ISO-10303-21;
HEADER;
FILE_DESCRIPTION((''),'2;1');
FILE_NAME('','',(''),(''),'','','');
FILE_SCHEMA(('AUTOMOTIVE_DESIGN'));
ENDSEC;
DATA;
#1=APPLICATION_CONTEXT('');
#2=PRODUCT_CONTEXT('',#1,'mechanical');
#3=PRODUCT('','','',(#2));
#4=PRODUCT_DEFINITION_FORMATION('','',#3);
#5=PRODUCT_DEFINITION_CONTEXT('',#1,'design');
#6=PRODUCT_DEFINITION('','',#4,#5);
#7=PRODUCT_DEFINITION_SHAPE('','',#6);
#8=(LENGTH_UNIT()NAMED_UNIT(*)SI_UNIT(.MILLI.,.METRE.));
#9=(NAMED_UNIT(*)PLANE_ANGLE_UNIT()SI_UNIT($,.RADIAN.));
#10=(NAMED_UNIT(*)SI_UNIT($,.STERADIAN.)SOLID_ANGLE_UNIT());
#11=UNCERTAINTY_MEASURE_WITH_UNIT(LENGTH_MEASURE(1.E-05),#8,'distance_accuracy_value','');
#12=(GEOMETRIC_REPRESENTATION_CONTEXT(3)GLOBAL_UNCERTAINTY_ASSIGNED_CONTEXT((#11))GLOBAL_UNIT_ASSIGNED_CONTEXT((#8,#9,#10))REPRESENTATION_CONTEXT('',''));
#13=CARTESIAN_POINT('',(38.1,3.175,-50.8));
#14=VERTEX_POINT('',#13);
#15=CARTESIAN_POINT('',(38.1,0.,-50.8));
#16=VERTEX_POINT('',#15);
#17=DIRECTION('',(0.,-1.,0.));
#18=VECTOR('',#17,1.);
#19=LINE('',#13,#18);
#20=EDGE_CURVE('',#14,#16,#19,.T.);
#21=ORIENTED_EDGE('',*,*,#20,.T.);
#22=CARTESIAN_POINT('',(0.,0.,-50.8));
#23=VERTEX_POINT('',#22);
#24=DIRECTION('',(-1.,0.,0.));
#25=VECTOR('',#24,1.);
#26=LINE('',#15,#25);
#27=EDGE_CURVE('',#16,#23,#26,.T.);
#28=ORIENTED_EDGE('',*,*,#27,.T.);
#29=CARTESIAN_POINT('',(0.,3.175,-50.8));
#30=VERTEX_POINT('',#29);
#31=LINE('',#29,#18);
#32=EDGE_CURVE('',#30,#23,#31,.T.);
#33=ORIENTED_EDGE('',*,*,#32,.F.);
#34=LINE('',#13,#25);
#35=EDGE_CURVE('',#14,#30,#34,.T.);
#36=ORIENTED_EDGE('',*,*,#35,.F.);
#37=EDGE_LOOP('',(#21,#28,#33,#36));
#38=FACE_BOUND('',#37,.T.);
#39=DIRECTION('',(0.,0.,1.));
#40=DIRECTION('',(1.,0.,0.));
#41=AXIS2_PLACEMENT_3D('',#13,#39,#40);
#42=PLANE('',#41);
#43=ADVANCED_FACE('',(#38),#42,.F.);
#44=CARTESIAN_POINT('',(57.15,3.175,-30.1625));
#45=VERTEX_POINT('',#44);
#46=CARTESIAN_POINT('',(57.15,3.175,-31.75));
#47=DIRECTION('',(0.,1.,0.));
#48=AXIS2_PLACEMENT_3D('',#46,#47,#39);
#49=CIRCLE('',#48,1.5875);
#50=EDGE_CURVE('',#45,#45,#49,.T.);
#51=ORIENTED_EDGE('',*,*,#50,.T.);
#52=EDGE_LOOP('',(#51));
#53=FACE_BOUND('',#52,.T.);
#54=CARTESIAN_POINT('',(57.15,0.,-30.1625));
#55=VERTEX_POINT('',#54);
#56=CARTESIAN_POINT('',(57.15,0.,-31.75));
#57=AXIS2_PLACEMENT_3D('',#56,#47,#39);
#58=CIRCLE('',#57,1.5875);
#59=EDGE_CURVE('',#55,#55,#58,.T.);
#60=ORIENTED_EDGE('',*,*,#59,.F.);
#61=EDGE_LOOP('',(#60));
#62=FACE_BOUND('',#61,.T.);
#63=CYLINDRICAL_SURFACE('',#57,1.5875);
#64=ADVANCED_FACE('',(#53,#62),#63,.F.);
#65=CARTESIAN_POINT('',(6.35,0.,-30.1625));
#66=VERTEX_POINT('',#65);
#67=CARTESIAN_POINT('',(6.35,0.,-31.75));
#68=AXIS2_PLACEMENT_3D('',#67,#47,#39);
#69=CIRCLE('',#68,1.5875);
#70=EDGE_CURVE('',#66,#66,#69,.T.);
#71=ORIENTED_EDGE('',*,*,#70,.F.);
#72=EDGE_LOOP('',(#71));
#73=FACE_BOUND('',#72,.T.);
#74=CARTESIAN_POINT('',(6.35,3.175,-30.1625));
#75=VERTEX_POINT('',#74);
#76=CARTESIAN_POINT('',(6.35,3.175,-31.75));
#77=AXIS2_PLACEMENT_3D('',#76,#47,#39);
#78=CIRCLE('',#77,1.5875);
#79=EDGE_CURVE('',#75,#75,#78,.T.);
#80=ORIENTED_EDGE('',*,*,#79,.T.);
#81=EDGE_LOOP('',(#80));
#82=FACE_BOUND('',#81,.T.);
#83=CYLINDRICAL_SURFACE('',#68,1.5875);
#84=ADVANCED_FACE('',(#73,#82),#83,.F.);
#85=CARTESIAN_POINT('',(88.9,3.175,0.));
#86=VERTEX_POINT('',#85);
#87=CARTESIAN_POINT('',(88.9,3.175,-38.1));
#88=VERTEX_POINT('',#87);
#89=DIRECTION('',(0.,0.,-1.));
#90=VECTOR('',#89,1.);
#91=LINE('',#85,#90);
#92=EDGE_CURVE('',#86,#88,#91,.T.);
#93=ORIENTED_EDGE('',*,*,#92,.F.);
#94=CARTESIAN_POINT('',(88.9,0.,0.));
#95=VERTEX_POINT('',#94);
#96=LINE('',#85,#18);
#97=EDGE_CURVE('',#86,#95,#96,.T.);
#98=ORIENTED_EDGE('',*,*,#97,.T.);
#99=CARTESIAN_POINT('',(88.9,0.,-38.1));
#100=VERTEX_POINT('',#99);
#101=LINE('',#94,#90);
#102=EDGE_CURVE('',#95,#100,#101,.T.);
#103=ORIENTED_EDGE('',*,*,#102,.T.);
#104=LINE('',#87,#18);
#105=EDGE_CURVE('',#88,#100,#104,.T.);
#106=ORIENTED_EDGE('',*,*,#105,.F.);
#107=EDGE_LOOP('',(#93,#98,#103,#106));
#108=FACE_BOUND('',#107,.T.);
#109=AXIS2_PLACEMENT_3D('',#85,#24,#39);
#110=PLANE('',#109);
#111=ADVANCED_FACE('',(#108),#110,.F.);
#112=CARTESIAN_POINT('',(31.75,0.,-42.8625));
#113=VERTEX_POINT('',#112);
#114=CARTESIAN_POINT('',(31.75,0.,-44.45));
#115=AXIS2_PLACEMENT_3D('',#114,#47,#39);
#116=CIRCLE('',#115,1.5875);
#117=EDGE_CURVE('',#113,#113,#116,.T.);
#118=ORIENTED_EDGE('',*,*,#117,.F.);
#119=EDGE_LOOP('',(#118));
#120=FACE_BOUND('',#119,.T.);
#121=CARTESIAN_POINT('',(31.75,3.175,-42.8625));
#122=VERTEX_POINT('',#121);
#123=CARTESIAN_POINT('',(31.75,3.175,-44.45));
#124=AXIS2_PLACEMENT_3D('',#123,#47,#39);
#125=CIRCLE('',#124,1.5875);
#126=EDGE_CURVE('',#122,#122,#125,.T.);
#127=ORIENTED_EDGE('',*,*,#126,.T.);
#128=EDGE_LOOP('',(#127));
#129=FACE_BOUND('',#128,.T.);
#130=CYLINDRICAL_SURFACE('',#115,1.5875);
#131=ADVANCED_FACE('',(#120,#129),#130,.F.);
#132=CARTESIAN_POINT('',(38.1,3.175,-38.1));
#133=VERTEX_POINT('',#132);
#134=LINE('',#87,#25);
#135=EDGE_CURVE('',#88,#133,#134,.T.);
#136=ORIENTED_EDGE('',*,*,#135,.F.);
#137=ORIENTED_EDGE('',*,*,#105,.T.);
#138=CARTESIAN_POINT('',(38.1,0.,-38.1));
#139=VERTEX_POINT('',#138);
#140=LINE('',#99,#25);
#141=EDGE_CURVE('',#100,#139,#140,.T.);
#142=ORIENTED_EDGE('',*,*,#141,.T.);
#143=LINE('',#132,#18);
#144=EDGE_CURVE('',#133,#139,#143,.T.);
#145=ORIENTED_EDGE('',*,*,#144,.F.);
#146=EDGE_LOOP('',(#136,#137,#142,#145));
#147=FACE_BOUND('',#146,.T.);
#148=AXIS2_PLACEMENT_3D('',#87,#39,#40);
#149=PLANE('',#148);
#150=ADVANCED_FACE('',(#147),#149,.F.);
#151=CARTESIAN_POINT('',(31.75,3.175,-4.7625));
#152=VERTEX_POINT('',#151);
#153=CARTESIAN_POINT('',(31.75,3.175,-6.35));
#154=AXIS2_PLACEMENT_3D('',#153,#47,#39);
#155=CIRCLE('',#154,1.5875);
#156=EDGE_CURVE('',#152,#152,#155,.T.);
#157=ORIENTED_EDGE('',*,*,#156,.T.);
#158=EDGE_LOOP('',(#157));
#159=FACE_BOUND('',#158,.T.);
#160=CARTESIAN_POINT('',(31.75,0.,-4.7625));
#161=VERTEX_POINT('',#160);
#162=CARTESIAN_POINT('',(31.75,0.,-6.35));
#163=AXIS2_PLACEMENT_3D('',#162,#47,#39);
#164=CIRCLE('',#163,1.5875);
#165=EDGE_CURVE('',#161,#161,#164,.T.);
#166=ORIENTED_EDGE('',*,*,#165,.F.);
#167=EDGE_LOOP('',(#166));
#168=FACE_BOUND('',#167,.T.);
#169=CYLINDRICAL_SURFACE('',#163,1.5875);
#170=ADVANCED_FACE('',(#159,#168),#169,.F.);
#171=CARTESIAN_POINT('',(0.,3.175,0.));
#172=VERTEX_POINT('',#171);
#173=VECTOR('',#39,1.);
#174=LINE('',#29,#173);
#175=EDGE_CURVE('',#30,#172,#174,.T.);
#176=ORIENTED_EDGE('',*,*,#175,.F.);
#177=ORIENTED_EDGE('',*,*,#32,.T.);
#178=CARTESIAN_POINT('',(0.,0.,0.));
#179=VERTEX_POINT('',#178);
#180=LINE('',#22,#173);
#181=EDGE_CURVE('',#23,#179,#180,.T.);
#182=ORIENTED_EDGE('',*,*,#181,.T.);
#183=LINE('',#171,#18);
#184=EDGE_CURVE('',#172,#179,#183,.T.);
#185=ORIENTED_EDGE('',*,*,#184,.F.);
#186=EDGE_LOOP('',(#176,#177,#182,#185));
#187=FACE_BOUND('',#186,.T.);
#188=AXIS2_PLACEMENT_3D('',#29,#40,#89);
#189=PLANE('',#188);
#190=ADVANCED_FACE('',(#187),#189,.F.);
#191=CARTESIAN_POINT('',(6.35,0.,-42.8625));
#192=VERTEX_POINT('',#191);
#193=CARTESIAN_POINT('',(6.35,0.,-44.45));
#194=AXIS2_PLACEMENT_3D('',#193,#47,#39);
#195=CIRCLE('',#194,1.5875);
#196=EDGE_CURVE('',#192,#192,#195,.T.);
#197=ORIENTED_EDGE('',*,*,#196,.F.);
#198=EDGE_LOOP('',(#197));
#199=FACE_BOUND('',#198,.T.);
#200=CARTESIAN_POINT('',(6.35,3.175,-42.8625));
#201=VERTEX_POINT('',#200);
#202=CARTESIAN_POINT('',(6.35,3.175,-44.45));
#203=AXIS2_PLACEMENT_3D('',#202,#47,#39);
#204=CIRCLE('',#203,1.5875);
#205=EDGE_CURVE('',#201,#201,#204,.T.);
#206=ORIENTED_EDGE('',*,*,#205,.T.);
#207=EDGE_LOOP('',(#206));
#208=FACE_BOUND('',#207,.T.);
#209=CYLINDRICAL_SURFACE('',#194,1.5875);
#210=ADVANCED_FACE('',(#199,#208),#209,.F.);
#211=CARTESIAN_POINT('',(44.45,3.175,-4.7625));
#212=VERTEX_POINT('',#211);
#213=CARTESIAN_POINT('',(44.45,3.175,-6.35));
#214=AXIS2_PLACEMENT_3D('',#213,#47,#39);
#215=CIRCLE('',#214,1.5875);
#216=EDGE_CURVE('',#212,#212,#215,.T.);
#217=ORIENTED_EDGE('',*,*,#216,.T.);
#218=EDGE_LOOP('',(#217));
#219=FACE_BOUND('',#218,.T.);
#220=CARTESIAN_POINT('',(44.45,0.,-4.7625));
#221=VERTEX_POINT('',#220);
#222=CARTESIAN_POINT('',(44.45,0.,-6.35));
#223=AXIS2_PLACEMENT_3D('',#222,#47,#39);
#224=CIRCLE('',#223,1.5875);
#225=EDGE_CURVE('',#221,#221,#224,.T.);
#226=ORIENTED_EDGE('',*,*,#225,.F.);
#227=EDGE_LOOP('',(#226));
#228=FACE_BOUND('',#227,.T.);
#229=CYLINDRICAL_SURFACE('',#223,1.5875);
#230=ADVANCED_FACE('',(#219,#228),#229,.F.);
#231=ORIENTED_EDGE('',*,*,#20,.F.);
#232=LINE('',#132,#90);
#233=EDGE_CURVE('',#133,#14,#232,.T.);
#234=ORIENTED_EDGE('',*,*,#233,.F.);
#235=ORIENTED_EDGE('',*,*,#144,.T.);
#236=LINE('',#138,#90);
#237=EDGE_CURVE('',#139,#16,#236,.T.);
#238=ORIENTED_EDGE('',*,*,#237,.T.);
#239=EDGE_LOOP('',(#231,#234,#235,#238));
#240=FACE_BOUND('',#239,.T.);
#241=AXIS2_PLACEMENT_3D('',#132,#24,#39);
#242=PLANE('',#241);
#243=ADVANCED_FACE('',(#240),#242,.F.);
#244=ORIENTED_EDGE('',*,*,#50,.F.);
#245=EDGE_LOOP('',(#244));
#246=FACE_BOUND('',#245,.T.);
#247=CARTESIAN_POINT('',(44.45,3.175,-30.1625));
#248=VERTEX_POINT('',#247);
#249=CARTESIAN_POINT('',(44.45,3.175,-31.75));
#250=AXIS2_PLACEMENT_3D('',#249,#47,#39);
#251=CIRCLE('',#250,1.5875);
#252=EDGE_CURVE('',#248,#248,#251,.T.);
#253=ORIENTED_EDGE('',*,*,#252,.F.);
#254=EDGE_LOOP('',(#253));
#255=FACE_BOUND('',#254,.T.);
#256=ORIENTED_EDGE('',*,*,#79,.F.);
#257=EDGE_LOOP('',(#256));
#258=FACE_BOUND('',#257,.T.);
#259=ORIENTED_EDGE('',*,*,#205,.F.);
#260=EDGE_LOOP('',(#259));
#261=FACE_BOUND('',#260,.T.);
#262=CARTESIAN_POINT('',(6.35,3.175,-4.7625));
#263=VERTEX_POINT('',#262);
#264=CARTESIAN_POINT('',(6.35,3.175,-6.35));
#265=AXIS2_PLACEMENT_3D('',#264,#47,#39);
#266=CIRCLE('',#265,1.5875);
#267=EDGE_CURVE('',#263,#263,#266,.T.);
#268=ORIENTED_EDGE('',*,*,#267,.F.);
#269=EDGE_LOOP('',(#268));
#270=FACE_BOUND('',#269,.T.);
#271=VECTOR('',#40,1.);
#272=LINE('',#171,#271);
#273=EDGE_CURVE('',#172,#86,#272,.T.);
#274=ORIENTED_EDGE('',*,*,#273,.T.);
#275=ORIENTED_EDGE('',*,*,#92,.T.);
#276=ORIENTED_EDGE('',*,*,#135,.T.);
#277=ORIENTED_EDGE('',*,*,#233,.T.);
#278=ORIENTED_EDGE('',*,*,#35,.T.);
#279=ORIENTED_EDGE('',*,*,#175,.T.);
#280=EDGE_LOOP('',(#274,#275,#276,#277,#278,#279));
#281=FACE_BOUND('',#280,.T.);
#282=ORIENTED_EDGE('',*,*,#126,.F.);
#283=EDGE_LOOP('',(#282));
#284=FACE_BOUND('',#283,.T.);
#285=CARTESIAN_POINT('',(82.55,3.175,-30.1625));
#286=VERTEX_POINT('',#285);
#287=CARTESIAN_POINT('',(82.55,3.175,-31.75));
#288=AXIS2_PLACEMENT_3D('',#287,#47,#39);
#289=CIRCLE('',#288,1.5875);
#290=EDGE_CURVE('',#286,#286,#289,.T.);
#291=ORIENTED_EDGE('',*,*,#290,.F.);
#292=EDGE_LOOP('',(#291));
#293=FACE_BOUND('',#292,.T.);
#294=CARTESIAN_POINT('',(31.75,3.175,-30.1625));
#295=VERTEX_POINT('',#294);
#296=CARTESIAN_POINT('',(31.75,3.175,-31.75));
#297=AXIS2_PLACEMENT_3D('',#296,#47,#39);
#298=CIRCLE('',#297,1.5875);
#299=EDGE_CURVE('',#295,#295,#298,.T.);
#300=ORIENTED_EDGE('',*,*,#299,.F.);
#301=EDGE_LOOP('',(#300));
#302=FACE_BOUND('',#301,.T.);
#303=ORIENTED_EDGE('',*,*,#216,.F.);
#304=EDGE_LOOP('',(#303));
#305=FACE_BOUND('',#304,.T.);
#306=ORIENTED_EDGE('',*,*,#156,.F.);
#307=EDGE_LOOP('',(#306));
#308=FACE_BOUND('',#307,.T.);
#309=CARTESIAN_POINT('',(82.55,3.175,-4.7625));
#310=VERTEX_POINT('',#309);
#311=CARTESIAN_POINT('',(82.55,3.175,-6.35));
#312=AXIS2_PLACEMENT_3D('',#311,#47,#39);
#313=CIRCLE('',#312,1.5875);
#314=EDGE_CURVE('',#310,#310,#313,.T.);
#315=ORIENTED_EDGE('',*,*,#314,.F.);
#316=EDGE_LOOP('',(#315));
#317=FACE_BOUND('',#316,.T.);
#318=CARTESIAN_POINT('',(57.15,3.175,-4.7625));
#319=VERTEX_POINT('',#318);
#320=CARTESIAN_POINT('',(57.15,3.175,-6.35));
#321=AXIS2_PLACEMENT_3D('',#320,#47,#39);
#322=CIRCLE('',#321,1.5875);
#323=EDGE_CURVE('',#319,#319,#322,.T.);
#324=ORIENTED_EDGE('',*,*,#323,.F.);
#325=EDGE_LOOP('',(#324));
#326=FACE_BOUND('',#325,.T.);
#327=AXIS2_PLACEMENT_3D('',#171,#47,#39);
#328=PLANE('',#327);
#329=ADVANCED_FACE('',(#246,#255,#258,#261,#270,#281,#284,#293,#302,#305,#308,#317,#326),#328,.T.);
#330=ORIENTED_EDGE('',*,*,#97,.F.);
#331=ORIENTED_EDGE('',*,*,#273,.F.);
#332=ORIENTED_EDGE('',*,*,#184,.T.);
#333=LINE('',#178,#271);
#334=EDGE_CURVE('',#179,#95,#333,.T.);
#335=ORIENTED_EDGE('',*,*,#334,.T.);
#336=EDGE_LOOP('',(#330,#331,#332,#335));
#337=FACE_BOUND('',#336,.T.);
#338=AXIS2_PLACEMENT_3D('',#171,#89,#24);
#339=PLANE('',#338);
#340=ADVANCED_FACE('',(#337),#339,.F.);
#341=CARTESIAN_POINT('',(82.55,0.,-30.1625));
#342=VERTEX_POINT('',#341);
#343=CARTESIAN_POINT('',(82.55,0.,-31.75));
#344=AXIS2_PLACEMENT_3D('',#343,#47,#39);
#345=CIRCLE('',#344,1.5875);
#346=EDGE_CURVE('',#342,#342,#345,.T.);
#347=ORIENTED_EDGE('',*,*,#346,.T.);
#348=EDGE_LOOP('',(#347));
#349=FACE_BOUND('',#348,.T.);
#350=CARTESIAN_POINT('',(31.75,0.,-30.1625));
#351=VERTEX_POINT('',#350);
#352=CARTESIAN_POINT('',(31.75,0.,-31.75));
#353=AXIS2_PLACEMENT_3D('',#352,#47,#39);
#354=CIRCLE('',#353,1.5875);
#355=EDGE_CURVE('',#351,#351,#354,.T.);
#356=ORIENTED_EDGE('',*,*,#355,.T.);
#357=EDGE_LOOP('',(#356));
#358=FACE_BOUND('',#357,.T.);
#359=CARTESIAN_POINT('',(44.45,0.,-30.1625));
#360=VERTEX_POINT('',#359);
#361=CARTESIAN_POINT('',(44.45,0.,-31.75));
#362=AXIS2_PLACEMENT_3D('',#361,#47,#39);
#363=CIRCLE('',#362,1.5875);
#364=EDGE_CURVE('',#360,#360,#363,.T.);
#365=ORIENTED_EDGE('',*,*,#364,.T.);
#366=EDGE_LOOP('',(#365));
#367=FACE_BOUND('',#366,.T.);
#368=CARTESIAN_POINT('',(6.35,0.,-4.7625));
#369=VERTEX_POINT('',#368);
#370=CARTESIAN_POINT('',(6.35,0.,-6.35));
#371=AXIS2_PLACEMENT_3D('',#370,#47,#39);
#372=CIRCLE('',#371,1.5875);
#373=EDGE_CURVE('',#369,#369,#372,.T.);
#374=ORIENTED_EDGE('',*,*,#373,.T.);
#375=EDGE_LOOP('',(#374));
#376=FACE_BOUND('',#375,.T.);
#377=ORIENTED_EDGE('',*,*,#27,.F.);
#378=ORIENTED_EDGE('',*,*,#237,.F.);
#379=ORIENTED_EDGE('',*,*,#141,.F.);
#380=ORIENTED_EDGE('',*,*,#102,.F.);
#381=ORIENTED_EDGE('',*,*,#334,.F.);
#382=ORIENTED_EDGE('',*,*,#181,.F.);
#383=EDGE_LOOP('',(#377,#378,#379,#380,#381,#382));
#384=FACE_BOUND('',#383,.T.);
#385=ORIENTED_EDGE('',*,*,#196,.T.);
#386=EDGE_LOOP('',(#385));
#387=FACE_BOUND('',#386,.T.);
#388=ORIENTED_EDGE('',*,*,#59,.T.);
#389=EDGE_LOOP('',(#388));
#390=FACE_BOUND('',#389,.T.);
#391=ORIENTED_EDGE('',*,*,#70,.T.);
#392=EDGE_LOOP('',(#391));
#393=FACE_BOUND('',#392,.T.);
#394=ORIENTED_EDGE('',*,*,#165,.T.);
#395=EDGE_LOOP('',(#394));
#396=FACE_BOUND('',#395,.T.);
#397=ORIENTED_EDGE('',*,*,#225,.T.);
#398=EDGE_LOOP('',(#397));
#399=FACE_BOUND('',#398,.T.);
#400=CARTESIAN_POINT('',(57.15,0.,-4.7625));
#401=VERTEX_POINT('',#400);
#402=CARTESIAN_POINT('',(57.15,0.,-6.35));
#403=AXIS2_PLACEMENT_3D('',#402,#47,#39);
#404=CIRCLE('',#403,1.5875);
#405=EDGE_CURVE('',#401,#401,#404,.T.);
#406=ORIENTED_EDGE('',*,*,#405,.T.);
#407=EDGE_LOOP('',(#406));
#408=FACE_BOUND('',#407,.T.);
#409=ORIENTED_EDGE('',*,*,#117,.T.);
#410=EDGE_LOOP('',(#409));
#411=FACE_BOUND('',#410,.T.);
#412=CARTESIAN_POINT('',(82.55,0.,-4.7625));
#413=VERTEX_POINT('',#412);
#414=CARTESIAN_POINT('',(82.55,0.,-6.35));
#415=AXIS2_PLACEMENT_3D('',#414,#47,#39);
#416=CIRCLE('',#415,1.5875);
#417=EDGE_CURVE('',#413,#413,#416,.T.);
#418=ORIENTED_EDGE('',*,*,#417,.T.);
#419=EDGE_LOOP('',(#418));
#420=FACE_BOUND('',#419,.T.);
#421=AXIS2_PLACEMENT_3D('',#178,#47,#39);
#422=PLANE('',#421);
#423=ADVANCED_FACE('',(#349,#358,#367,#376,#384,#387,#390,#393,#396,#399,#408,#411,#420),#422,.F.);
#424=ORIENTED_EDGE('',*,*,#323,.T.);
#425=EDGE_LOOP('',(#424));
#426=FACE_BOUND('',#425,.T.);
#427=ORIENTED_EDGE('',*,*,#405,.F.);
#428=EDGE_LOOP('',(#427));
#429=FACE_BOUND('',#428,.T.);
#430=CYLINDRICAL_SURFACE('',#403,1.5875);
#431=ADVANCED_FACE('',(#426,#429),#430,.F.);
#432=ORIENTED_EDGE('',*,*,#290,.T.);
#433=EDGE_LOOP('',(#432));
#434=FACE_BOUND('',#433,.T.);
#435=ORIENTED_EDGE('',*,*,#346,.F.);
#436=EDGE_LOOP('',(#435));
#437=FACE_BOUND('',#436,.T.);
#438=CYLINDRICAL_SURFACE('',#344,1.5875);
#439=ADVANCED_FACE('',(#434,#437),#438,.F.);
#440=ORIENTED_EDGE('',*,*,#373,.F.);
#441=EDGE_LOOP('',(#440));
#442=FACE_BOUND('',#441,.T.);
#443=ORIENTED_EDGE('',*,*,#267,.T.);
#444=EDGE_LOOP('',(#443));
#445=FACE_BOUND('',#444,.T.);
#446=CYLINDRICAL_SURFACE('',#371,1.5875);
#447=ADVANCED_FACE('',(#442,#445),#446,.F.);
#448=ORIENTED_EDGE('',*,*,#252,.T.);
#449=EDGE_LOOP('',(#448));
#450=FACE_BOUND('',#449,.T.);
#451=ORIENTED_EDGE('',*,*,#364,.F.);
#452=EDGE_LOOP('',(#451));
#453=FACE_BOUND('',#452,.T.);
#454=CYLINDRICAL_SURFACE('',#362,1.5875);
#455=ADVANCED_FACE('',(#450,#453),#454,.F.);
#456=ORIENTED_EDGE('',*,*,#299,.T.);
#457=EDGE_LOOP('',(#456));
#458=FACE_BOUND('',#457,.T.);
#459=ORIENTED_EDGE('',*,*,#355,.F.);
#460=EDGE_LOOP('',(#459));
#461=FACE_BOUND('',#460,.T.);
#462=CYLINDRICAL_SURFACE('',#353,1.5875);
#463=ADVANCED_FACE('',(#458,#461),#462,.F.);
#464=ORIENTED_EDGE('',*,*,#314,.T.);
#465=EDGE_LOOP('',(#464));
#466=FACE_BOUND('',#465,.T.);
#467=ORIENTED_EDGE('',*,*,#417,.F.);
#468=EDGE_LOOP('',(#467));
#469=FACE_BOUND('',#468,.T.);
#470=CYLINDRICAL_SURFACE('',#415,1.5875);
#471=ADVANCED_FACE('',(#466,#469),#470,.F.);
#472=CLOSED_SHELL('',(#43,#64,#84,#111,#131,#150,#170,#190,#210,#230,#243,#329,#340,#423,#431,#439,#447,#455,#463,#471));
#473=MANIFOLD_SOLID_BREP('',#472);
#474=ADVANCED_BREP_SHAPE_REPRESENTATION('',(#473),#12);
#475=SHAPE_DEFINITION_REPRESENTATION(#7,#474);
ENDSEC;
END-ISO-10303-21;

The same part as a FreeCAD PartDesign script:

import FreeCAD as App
import Part
import Sketcher
Q = App.Units.Quantity


def add_polygon(sketch, points):
    """Adds a closed chain of lines whose ends are joined by coincident constraints."""
    first, n = sketch.GeometryCount, len(points)
    for a, b in zip(points, points[1:] + points[:1]):
        sketch.addGeometry(Part.LineSegment(App.Vector(*a, 0), App.Vector(*b, 0)), False)
    for i in range(n):
        sketch.addConstraint(Sketcher.Constraint("Coincident", first + i, 2, first + (i + 1) % n, 1))

doc = App.newDocument("Part")
body = doc.addObject("PartDesign::Body", "Body")

# Sketch on XZ plane
sketch1 = body.newObject("Sketcher::SketchObject", "Sketch")
sketch1.AttachmentSupport = (doc.getObject("XZ_Plane"), [""])
sketch1.MapMode = "FlatFace"
add_polygon(sketch1, [(0, -50.8), (0, 0), (88.9, 0), (88.9, -38.1), (38.1, -38.1), (38.1, -50.8)])  # lines 0-5
sketch1.addConstraint([
    Sketcher.Constraint("Vertical", 0),
    Sketcher.Constraint("Horizontal", 1),
    Sketcher.Constraint("Vertical", 2),
    Sketcher.Constraint("Horizontal", 3),
    Sketcher.Constraint("Vertical", 4),
    Sketcher.Constraint("Horizontal", 5),
    Sketcher.Constraint("Coincident", 0, 2, -1, 1),
    Sketcher.Constraint("Equal", 3, 0),
    Sketcher.Constraint("Equal", 5, 2),
    Sketcher.Constraint("DistanceX", 3, 2, 3, 1, Q("2 in")),
    Sketcher.Constraint("DistanceX", 1, 1, 1, 2, Q("3.5 in")),
])
pad1 = body.newObject("PartDesign::Pad", "Pad")
pad1.Profile = sketch1
pad1.Length = Q("0.125 in")
pad1.Reversed = True

# Sketch on XZ plane
sketch2 = body.newObject("Sketcher::SketchObject", "Sketch001")
sketch2.AttachmentSupport = (doc.getObject("XZ_Plane"), [""])
sketch2.MapMode = "FlatFace"
sketch2.AttachmentOffset = App.Placement(App.Vector(0, 0, -0.125 * 25.4), App.Rotation())
sketch2.addGeometry([
    Part.Circle(App.Vector(6.35, -44.45, 0), App.Vector(0, 0, 1), 1.5875),  # 0
    Part.Circle(App.Vector(31.75, -44.45, 0), App.Vector(0, 0, 1), 1.5875),  # 1
    Part.Circle(App.Vector(31.75, -31.75, 0), App.Vector(0, 0, 1), 1.5875),  # 2
    Part.Circle(App.Vector(6.35, -31.75, 0), App.Vector(0, 0, 1), 1.5875),  # 3
    Part.Circle(App.Vector(6.35, -6.35, 0), App.Vector(0, 0, 1), 1.5875),  # 4
    Part.Circle(App.Vector(31.75, -6.35, 0), App.Vector(0, 0, 1), 1.5875),  # 5
    Part.Circle(App.Vector(82.55, -6.35, 0), App.Vector(0, 0, 1), 1.5875),  # 6
    Part.Circle(App.Vector(82.55, -31.75, 0), App.Vector(0, 0, 1), 1.5875),  # 7
    Part.Circle(App.Vector(57.15, -31.75, 0), App.Vector(0, 0, 1), 1.5875),  # 8
    Part.Circle(App.Vector(57.15, -6.35, 0), App.Vector(0, 0, 1), 1.5875),  # 9
    Part.Circle(App.Vector(44.45, -6.35, 0), App.Vector(0, 0, 1), 1.5875),  # 10
    Part.Circle(App.Vector(44.45, -31.75, 0), App.Vector(0, 0, 1), 1.5875),  # 11
], False)
sketch2.addConstraint([
    Sketcher.Constraint("Equal", 0, 1),
    Sketcher.Constraint("Equal", 1, 2),
    Sketcher.Constraint("Equal", 2, 3),
    Sketcher.Constraint("Equal", 3, 4),
    Sketcher.Constraint("Equal", 4, 5),
    Sketcher.Constraint("Equal", 5, 6),
    Sketcher.Constraint("Equal", 6, 7),
    Sketcher.Constraint("Equal", 7, 8),
    Sketcher.Constraint("Equal", 8, 9),
    Sketcher.Constraint("Equal", 9, 10),
    Sketcher.Constraint("Equal", 10, 11),
    Sketcher.Constraint("Horizontal", 0, 3, 1, 3),
    Sketcher.Constraint("Horizontal", 2, 3, 3, 3),
    Sketcher.Constraint("Horizontal", 4, 3, 5, 3),
    Sketcher.Constraint("Horizontal", 5, 3, 6, 3),
    Sketcher.Constraint("Horizontal", 3, 3, 7, 3),
    Sketcher.Constraint("Horizontal", 7, 3, 8, 3),
    Sketcher.Constraint("Horizontal", 6, 3, 9, 3),
    Sketcher.Constraint("Horizontal", 9, 3, 10, 3),
    Sketcher.Constraint("Horizontal", 8, 3, 11, 3),
    Sketcher.Constraint("Vertical", 1, 3, 2, 3),
    Sketcher.Constraint("Vertical", 0, 3, 3, 3),
    Sketcher.Constraint("Vertical", 3, 3, 4, 3),
    Sketcher.Constraint("Vertical", 2, 3, 5, 3),
    Sketcher.Constraint("Vertical", 6, 3, 7, 3),
    Sketcher.Constraint("Vertical", 8, 3, 9, 3),
    Sketcher.Constraint("Vertical", 10, 3, 11, 3),
    Sketcher.Constraint("Diameter", 0, Q("0.125 in")),
    Sketcher.Constraint("DistanceX", 0, 3, 1, 3, Q("1 in")),
    Sketcher.Constraint("DistanceY", 3, 3, 4, 3, Q("1 in")),
    Sketcher.Constraint("DistanceX", 5, 3, 6, 3, Q("2 in")),
    Sketcher.Constraint("DistanceX", 2, 3, 8, 3, Q("1 in")),
    Sketcher.Constraint("DistanceY", 1, 3, 2, 3, Q("0.5 in")),
    Sketcher.Constraint("DistanceX", 10, 3, 9, 3, Q("0.5 in")),
    Sketcher.Constraint("DistanceX", -1, 1, 0, 3, Q("0.25 in")),
    Sketcher.Constraint("DistanceY", 0, 3, -1, 1, Q("1.75 in")),
])
pocket1 = body.newObject("PartDesign::Pocket", "Pocket")
pocket1.Profile = sketch2
pocket1.Type = "ThroughAll"
pocket1.Reversed = True

doc.recompute()
